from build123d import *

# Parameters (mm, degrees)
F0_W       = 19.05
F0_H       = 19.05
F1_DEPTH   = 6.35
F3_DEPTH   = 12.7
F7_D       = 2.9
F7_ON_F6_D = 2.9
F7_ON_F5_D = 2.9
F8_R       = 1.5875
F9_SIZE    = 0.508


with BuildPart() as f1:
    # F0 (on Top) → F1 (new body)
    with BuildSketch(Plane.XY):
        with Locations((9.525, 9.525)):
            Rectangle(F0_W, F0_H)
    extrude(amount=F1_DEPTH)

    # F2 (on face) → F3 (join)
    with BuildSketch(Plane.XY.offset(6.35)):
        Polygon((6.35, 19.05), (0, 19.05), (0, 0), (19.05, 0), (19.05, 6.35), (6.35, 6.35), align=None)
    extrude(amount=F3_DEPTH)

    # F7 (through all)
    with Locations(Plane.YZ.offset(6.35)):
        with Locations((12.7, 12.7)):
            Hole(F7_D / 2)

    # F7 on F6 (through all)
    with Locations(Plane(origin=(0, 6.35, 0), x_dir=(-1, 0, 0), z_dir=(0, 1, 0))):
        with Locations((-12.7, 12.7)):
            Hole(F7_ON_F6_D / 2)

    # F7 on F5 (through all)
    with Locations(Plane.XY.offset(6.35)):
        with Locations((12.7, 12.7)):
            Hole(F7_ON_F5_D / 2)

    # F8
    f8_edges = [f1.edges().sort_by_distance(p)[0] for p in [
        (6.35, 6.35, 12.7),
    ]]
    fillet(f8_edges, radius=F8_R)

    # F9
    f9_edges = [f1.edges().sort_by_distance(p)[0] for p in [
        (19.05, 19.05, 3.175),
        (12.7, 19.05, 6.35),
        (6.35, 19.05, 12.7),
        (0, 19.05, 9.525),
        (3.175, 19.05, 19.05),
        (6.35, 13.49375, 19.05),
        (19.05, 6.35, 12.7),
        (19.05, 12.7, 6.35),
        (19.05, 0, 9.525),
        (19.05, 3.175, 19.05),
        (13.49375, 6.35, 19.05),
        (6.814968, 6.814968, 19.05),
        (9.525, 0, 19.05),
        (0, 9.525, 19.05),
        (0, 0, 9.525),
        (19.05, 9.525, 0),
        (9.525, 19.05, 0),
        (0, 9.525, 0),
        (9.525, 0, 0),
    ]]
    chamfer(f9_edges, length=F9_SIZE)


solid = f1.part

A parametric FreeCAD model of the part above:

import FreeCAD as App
import Part
import Sketcher
from FreeCAD import Vector
Q = App.Units.Quantity


def edges_at(feature, points):
    """Names of the edges that pass closest to the given points."""
    edges = feature.Shape.Edges
    near = lambda p: min(range(len(edges)), key=lambda i: edges[i].distToShape(Part.Vertex(*p))[0])
    return sorted({f"Edge{near(p) + 1}" for p in points})

doc = App.newDocument("Part")
body = doc.addObject("PartDesign::Body", "Body")

sketch1 = body.newObject("Sketcher::SketchObject", "Sketch")
sketch1.AttachmentSupport = (doc.getObject("XY_Plane"), [""])
sketch1.MapMode = "FlatFace"
sketch1.addGeometry(Part.LineSegment(Vector(0, 19, 0), Vector(0, 0, 0)), False)
sketch1.addGeometry(Part.LineSegment(Vector(0, 0, 0), Vector(19, 0, 0)), False)
sketch1.addGeometry(Part.LineSegment(Vector(19, 0, 0), Vector(19, 19, 0)), False)
sketch1.addGeometry(Part.LineSegment(Vector(19, 19, 0), Vector(0, 19, 0)), False)
sketch1.addConstraint(Sketcher.Constraint("Coincident", 0, 2, 1, 1))
sketch1.addConstraint(Sketcher.Constraint("Coincident", 1, 2, 2, 1))
sketch1.addConstraint(Sketcher.Constraint("Coincident", 2, 2, 3, 1))
sketch1.addConstraint(Sketcher.Constraint("Coincident", 3, 2, 0, 1))
sketch1.addConstraint(Sketcher.Constraint("Vertical", 0))
sketch1.addConstraint(Sketcher.Constraint("Horizontal", 1))
sketch1.addConstraint(Sketcher.Constraint("Vertical", 2))
sketch1.addConstraint(Sketcher.Constraint("Horizontal", 3))
sketch1.addConstraint(Sketcher.Constraint("Coincident", 0, 2, -1, 1))
sketch1.addConstraint(Sketcher.Constraint("Equal", 3, 0))
sketch1.addConstraint(Sketcher.Constraint("DistanceX", 1, 1, 1, 2, Q("0.75 in")))
pad1 = body.newObject("PartDesign::Pad", "Pad")
pad1.Profile = sketch1
pad1.Length = Q("0.25 in")

sketch2 = body.newObject("Sketcher::SketchObject", "Sketch001")
sketch2.AttachmentSupport = (doc.getObject("XY_Plane"), [""])
sketch2.MapMode = "FlatFace"
sketch2.AttachmentOffset = App.Placement(Vector(0, 0, 0.25 * 25.4), App.Rotation())
sketch2.addGeometry(Part.LineSegment(Vector(6, 19, 0), Vector(0, 19, 0)), False)
sketch2.addGeometry(Part.LineSegment(Vector(0, 19, 0), Vector(0, 0, 0)), False)
sketch2.addGeometry(Part.LineSegment(Vector(0, 0, 0), Vector(19, 0, 0)), False)
sketch2.addGeometry(Part.LineSegment(Vector(19, 0, 0), Vector(19, 6, 0)), False)
sketch2.addGeometry(Part.LineSegment(Vector(19, 6, 0), Vector(6, 6, 0)), False)
sketch2.addGeometry(Part.LineSegment(Vector(6, 6, 0), Vector(6, 19, 0)), False)
sketch2.addConstraint(Sketcher.Constraint("Coincident", 0, 2, 1, 1))
sketch2.addConstraint(Sketcher.Constraint("Coincident", 1, 2, 2, 1))
sketch2.addConstraint(Sketcher.Constraint("Coincident", 2, 2, 3, 1))
sketch2.addConstraint(Sketcher.Constraint("Coincident", 3, 2, 4, 1))
sketch2.addConstraint(Sketcher.Constraint("Coincident", 4, 2, 5, 1))
sketch2.addConstraint(Sketcher.Constraint("Coincident", 5, 2, 0, 1))
sketch2.addConstraint(Sketcher.Constraint("Horizontal", 0))
sketch2.addConstraint(Sketcher.Constraint("Vertical", 1))
sketch2.addConstraint(Sketcher.Constraint("Horizontal", 2))
sketch2.addConstraint(Sketcher.Constraint("Vertical", 3))
sketch2.addConstraint(Sketcher.Constraint("Horizontal", 4))
sketch2.addConstraint(Sketcher.Constraint("Vertical", 5))
sketch2.addConstraint(Sketcher.Constraint("Coincident", 1, 2, -1, 1))
sketch2.addConstraint(Sketcher.Constraint("Equal", 2, 1))
sketch2.addConstraint(Sketcher.Constraint("Equal", 0, 3))
sketch2.addConstraint(Sketcher.Constraint("DistanceX", 4, 2, 4, 1, Q("0.5 in")))
sketch2.addConstraint(Sketcher.Constraint("DistanceX", 0, 2, 0, 1, Q("0.25 in")))
pad2 = body.newObject("PartDesign::Pad", "Pad001")
pad2.Profile = sketch2
pad2.Length = Q("0.5 in")

sketch3 = body.newObject("Sketcher::SketchObject", "Sketch002")
sketch3.AttachmentSupport = (doc.getObject("YZ_Plane"), [""])
sketch3.MapMode = "FlatFace"
sketch3.AttachmentOffset = App.Placement(Vector(0, 0, 0.25 * 25.4), App.Rotation())
sketch3.addGeometry(Part.Circle(Vector(12.7, 12.7, 0), Vector(0, 0, 1), 1.4), False)
sketch3.addConstraint(Sketcher.Constraint("DistanceX", -1, 1, 0, 3, Q("0.5 in")))
sketch3.addConstraint(Sketcher.Constraint("DistanceY", -1, 1, 0, 3, Q("0.5 in")))
sketch3.addConstraint(Sketcher.Constraint("Diameter", 0, Q("2.9 mm")))
doc.recompute()
hole = body.newObject("PartDesign::Hole", "Hole")
hole.Profile = sketch3
hole.ThreadType = "None"
hole.Diameter = 2.9
hole.DepthType = "ThroughAll"

sketch4 = body.newObject("Sketcher::SketchObject", "Sketch003")
sketch4.AttachmentSupport = (doc.getObject("XZ_Plane"), [""])
sketch4.MapMode = "FlatFace"
sketch4.AttachmentOffset = App.Placement(Vector(0, 0, -0.25 * 25.4), App.Rotation())
sketch4.addGeometry(Part.Circle(Vector(12.7, 12.7, 0), Vector(0, 0, 1), 1.4), False)
sketch4.addConstraint(Sketcher.Constraint("DistanceX", -1, 1, 0, 3, Q("0.5 in")))
sketch4.addConstraint(Sketcher.Constraint("DistanceY", -1, 1, 0, 3, Q("0.5 in")))
sketch4.addConstraint(Sketcher.Constraint("Diameter", 0, Q("2.9 mm")))
doc.recompute()
hole2 = body.newObject("PartDesign::Hole", "Hole001")
hole2.Profile = sketch4
hole2.ThreadType = "None"
hole2.Diameter = 2.9
hole2.DepthType = "ThroughAll"
hole2.Reversed = True

sketch5 = body.newObject("Sketcher::SketchObject", "Sketch004")
sketch5.AttachmentSupport = (doc.getObject("XY_Plane"), [""])
sketch5.MapMode = "FlatFace"
sketch5.AttachmentOffset = App.Placement(Vector(0, 0, 0.25 * 25.4), App.Rotation())
sketch5.addGeometry(Part.Circle(Vector(12.7, 12.7, 0), Vector(0, 0, 1), 1.4), False)
sketch5.addConstraint(Sketcher.Constraint("DistanceX", -1, 1, 0, 3, Q("0.5 in")))
sketch5.addConstraint(Sketcher.Constraint("DistanceY", -1, 1, 0, 3, Q("0.5 in")))
sketch5.addConstraint(Sketcher.Constraint("Diameter", 0, Q("2.9 mm")))
doc.recompute()
hole3 = body.newObject("PartDesign::Hole", "Hole002")
hole3.Profile = sketch5
hole3.ThreadType = "None"
hole3.Diameter = 2.9
hole3.DepthType = "ThroughAll"
doc.recompute()

fillet = body.newObject("PartDesign::Fillet", "Fillet")
fillet.Base = (hole3, edges_at(hole3, [(6.35, 6.35, 12.7)]))
fillet.Radius = Q("0.0625 in")
doc.recompute()

chamfer = body.newObject("PartDesign::Chamfer", "Chamfer")
chamfer.Base = (fillet, edges_at(fillet, [
    (19.05, 19.05, 3.175),
    (12.7, 19.05, 6.35),
    (6.35, 19.05, 12.7),
    (0, 19.05, 9.525),
    (3.175, 19.05, 19.05),
    (6.35, 13.494, 19.05),
    (19.05, 6.35, 12.7),
    (19.05, 12.7, 6.35),
    (19.05, 0, 9.525),
    (19.05, 3.175, 19.05),
    (13.494, 6.35, 19.05),
    (6.815, 6.815, 19.05),
    (9.525, 0, 19.05),
    (0, 9.525, 19.05),
    (0, 0, 9.525),
    (19.05, 9.525, 0),
    (9.525, 19.05, 0),
    (0, 9.525, 0),
    (9.525, 0, 0),
]))
chamfer.Size = Q("0.02 in")

doc.recompute()
